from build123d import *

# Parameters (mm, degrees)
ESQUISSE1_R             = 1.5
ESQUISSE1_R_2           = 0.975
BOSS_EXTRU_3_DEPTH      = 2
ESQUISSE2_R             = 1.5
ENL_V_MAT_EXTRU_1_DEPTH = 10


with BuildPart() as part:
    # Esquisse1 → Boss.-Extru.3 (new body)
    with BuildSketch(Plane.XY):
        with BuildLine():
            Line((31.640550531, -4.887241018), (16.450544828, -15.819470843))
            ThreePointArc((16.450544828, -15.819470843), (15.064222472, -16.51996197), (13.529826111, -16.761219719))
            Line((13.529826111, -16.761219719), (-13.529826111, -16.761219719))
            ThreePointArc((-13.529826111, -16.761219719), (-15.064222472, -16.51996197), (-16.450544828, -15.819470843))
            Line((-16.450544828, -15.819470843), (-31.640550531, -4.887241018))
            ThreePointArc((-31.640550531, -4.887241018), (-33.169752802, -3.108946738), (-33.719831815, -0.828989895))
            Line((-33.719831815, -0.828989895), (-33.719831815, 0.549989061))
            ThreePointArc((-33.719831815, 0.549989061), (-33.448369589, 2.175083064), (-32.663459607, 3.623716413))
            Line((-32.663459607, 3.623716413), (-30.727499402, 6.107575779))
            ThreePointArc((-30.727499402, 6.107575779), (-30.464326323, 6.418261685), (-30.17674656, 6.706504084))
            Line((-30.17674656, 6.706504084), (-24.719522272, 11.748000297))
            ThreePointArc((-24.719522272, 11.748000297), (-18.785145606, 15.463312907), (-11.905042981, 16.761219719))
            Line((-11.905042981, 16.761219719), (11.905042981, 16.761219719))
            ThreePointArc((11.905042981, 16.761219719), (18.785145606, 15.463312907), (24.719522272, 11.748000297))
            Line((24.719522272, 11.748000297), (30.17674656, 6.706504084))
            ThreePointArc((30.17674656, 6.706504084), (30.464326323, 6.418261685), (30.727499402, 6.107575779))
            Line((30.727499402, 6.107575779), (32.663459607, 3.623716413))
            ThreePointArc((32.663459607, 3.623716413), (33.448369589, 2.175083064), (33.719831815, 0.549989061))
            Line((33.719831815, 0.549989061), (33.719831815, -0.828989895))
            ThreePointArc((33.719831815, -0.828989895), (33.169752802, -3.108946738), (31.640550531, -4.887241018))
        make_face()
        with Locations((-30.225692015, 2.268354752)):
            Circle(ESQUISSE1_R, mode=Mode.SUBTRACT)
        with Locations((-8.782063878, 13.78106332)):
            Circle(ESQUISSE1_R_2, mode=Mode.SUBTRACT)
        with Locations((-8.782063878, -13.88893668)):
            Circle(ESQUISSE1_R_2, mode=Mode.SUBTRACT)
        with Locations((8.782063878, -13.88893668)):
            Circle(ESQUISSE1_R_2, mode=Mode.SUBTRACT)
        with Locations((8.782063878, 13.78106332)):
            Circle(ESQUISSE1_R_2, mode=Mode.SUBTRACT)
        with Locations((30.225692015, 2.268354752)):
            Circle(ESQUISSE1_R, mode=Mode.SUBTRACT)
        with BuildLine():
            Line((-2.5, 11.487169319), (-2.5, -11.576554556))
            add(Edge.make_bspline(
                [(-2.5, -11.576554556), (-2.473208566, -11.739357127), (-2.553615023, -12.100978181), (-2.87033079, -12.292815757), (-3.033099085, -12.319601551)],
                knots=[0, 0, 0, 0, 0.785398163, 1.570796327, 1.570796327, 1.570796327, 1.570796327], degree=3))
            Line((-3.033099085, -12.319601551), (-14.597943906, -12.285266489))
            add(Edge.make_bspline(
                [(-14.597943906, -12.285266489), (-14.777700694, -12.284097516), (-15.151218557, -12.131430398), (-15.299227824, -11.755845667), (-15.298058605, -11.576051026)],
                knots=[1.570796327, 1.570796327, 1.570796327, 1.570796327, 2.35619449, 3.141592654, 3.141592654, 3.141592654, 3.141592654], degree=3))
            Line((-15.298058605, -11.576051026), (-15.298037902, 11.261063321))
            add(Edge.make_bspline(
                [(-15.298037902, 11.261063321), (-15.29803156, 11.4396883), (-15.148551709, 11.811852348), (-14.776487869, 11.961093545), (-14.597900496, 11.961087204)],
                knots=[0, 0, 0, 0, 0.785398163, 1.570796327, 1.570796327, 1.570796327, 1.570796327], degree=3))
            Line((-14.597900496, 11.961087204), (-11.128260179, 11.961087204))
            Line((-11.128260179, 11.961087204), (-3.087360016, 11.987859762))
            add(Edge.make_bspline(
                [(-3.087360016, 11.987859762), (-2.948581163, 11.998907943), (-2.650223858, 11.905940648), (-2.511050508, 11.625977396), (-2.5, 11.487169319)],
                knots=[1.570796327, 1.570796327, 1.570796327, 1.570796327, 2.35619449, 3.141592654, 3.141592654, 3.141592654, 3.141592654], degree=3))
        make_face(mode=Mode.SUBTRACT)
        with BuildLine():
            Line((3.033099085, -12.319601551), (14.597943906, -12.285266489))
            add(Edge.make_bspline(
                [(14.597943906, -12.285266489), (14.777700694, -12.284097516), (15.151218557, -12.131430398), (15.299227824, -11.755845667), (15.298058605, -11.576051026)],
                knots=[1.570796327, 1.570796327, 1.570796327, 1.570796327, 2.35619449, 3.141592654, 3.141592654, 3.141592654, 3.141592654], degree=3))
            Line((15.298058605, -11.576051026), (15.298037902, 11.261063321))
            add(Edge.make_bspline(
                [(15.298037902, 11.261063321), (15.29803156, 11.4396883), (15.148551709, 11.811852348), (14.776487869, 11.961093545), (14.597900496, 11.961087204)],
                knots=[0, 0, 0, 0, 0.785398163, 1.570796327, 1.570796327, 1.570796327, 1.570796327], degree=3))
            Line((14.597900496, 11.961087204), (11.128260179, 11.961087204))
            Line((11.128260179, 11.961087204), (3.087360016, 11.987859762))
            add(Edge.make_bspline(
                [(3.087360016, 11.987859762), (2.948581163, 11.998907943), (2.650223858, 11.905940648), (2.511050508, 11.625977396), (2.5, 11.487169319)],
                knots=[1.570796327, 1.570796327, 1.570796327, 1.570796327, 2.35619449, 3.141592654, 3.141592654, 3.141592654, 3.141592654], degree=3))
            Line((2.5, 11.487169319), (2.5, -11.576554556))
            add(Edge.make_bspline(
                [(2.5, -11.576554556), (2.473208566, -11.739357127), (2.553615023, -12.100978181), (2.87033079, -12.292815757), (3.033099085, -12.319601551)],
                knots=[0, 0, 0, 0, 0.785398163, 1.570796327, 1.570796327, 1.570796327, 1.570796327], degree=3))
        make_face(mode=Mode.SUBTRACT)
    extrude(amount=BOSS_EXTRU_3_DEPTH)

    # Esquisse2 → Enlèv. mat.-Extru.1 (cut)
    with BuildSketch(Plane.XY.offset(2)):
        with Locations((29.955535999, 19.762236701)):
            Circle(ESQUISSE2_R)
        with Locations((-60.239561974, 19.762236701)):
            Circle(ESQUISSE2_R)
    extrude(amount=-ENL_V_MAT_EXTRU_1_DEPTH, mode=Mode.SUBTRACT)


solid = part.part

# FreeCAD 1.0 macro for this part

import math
import FreeCAD as App
import Part
import Sketcher
Q = App.Units.Quantity

doc = App.newDocument("Part")
body = doc.addObject("PartDesign::Body", "Body")

# Sketch on XY plane
sketch1 = doc.addObject("Sketcher::SketchObject", "Sketch")
body.addObject(sketch1)
sketch1.AttachmentSupport = (doc.XY_Plane, [""])
sketch1.MapMode = "FlatFace"
sketch1.addGeometry(Part.LineSegment(App.Vector(16.450545, -15.819471, 0), App.Vector(31.640551, -4.887241, 0)), False)
sketch1.addGeometry(Part.ArcOfCircle(Part.Circle(App.Vector(28.719832, -0.82899, 0), App.Vector(0, 0, 1), 5), math.radians(-54.257478), math.radians(0)), False)
sketch1.addGeometry(Part.LineSegment(App.Vector(33.719832, -0.82899, 0), App.Vector(33.719832, 0.549989, 0)), False)
sketch1.addGeometry(Part.ArcOfCircle(Part.Circle(App.Vector(28.719832, 0.549989, 0), App.Vector(0, 0, 1), 5), math.radians(0), math.radians(37.933428)), False)
sketch1.addGeometry(Part.LineSegment(App.Vector(32.66346, 3.623716, 0), App.Vector(30.727499, 6.107576, 0)), False)
sketch1.addGeometry(Part.ArcOfCircle(Part.Circle(App.Vector(26.783872, 3.033848, 0), App.Vector(0, 0, 1), 5), math.radians(37.933428), math.radians(47.267612)), False)
sketch1.addGeometry(Part.LineSegment(App.Vector(30.176747, 6.706504, 0), App.Vector(24.719522, 11.748, 0)), False)
sketch1.addGeometry(Part.ArcOfCircle(Part.Circle(App.Vector(11.905043, -2.123177, 0), App.Vector(0, 0, 1), 18.884397), math.radians(47.267612), math.radians(90)), False)
sketch1.addGeometry(Part.LineSegment(App.Vector(11.905043, 16.76122, 0), App.Vector(-11.905043, 16.76122, 0)), False)
sketch1.addGeometry(Part.ArcOfCircle(Part.Circle(App.Vector(-11.905043, -2.123177, 0), App.Vector(0, 0, 1), 18.884397), math.radians(90), math.radians(132.732388)), False)
sketch1.addGeometry(Part.LineSegment(App.Vector(-24.719522, 11.748, 0), App.Vector(-30.176747, 6.706504, 0)), False)
sketch1.addGeometry(Part.ArcOfCircle(Part.Circle(App.Vector(-26.783872, 3.033848, 0), App.Vector(0, 0, 1), 5), math.radians(132.732388), math.radians(142.066572)), False)
sketch1.addGeometry(Part.LineSegment(App.Vector(-30.727499, 6.107576, 0), App.Vector(-32.66346, 3.623716, 0)), False)
sketch1.addGeometry(Part.ArcOfCircle(Part.Circle(App.Vector(-28.719832, 0.549989, 0), App.Vector(0, 0, 1), 5), math.radians(142.066572), math.radians(180)), False)
sketch1.addGeometry(Part.LineSegment(App.Vector(-33.719832, 0.549989, 0), App.Vector(-33.719832, -0.82899, 0)), False)
sketch1.addGeometry(Part.ArcOfCircle(Part.Circle(App.Vector(-28.719832, -0.82899, 0), App.Vector(0, 0, 1), 5), math.radians(-180), math.radians(-125.742522)), False)
sketch1.addGeometry(Part.LineSegment(App.Vector(-31.640551, -4.887241, 0), App.Vector(-16.450545, -15.819471, 0)), False)
sketch1.addGeometry(Part.ArcOfCircle(Part.Circle(App.Vector(-13.529826, -11.76122, 0), App.Vector(0, 0, 1), 5), math.radians(-125.742522), math.radians(-90)), False)
sketch1.addGeometry(Part.LineSegment(App.Vector(-13.529826, -16.76122, 0), App.Vector(13.529826, -16.76122, 0)), False)
sketch1.addGeometry(Part.ArcOfCircle(Part.Circle(App.Vector(13.529826, -11.76122, 0), App.Vector(0, 0, 1), 5), math.radians(-90), math.radians(-54.257478)), False)
sketch1.addGeometry(Part.Circle(App.Vector(8.782064, -13.888937, 0), App.Vector(0, 0, 1), 0.975), False)
sketch1.addGeometry(Part.BSplineCurve([App.Vector(2.5, -11.576555, 0), App.Vector(2.473209, -11.739357, 0), App.Vector(2.553615, -12.100978, 0), App.Vector(2.870331, -12.292816, 0), App.Vector(3.033099, -12.319602, 0)], [4, 1, 4], [0, 0.785398163, 1.570796327], False, 3, [1, 1, 1, 1, 1], False), False)
sketch1.addGeometry(Part.LineSegment(App.Vector(2.5, -11.576555, 0), App.Vector(2.5, 11.487169, 0)), False)
sketch1.addGeometry(Part.BSplineCurve([App.Vector(3.08736, 11.98786, 0), App.Vector(2.948581, 11.998908, 0), App.Vector(2.650224, 11.905941, 0), App.Vector(2.511051, 11.625977, 0), App.Vector(2.5, 11.487169, 0)], [4, 1, 4], [1.570796327, 2.35619449, 3.141592654], False, 3, [1, 1, 1, 1, 1], False), False)
sketch1.addGeometry(Part.LineSegment(App.Vector(3.08736, 11.98786, 0), App.Vector(11.12826, 11.961087, 0)), False)
sketch1.addGeometry(Part.LineSegment(App.Vector(11.12826, 11.961087, 0), App.Vector(14.5979, 11.961087, 0)), False)
sketch1.addGeometry(Part.BSplineCurve([App.Vector(15.298038, 11.261063, 0), App.Vector(15.298032, 11.439688, 0), App.Vector(15.148552, 11.811852, 0), App.Vector(14.776488, 11.961094, 0), App.Vector(14.5979, 11.961087, 0)], [4, 1, 4], [0, 0.785398163, 1.570796327], False, 3, [1, 1, 1, 1, 1], False), False)
sketch1.addGeometry(Part.LineSegment(App.Vector(15.298038, 11.261063, 0), App.Vector(15.298059, -11.576051, 0)), False)
sketch1.addGeometry(Part.BSplineCurve([App.Vector(14.597944, -12.285266, 0), App.Vector(14.777701, -12.284098, 0), App.Vector(15.151219, -12.13143, 0), App.Vector(15.299228, -11.755846, 0), App.Vector(15.298059, -11.576051, 0)], [4, 1, 4], [1.570796327, 2.35619449, 3.141592654], False, 3, [1, 1, 1, 1, 1], False), False)
sketch1.addGeometry(Part.LineSegment(App.Vector(14.597944, -12.285266, 0), App.Vector(3.033099, -12.319602, 0)), False)
sketch1.addGeometry(Part.Circle(App.Vector(-8.782064, -13.888937, 0), App.Vector(0, 0, 1), 0.975), False)
sketch1.addGeometry(Part.LineSegment(App.Vector(-2.5, 11.487169, 0), App.Vector(-2.5, -11.576555, 0)), False)
sketch1.addGeometry(Part.BSplineCurve([App.Vector(-2.5, -11.576555, 0), App.Vector(-2.473209, -11.739357, 0), App.Vector(-2.553615, -12.100978, 0), App.Vector(-2.870331, -12.292816, 0), App.Vector(-3.033099, -12.319602, 0)], [4, 1, 4], [0, 0.785398163, 1.570796327], False, 3, [1, 1, 1, 1, 1], False), False)
sketch1.addGeometry(Part.LineSegment(App.Vector(-3.033099, -12.319602, 0), App.Vector(-14.597944, -12.285266, 0)), False)
sketch1.addGeometry(Part.BSplineCurve([App.Vector(-14.597944, -12.285266, 0), App.Vector(-14.777701, -12.284098, 0), App.Vector(-15.151219, -12.13143, 0), App.Vector(-15.299228, -11.755846, 0), App.Vector(-15.298059, -11.576051, 0)], [4, 1, 4], [1.570796327, 2.35619449, 3.141592654], False, 3, [1, 1, 1, 1, 1], False), False)
sketch1.addGeometry(Part.LineSegment(App.Vector(-15.298059, -11.576051, 0), App.Vector(-15.298038, 11.261063, 0)), False)
sketch1.addGeometry(Part.BSplineCurve([App.Vector(-15.298038, 11.261063, 0), App.Vector(-15.298032, 11.439688, 0), App.Vector(-15.148552, 11.811852, 0), App.Vector(-14.776488, 11.961094, 0), App.Vector(-14.5979, 11.961087, 0)], [4, 1, 4], [0, 0.785398163, 1.570796327], False, 3, [1, 1, 1, 1, 1], False), False)
sketch1.addGeometry(Part.LineSegment(App.Vector(-14.5979, 11.961087, 0), App.Vector(-11.12826, 11.961087, 0)), False)
sketch1.addGeometry(Part.LineSegment(App.Vector(-11.12826, 11.961087, 0), App.Vector(-3.08736, 11.98786, 0)), False)
sketch1.addGeometry(Part.BSplineCurve([App.Vector(-3.08736, 11.98786, 0), App.Vector(-2.948581, 11.998908, 0), App.Vector(-2.650224, 11.905941, 0), App.Vector(-2.511051, 11.625977, 0), App.Vector(-2.5, 11.487169, 0)], [4, 1, 4], [1.570796327, 2.35619449, 3.141592654], False, 3, [1, 1, 1, 1, 1], False), False)
sketch1.addGeometry(Part.Circle(App.Vector(30.225692, 2.268355, 0), App.Vector(0, 0, 1), 1.5), False)
sketch1.addGeometry(Part.Circle(App.Vector(8.782064, 13.781063, 0), App.Vector(0, 0, 1), 0.975), False)
sketch1.addGeometry(Part.Circle(App.Vector(-30.225692, 2.268355, 0), App.Vector(0, 0, 1), 1.5), False)
sketch1.addGeometry(Part.Circle(App.Vector(-8.782064, 13.781063, 0), App.Vector(0, 0, 1), 0.975), False)
sketch1.addConstraint(Sketcher.Constraint("Block", 21))
sketch1.addConstraint(Sketcher.Constraint("Block", 23))
sketch1.addConstraint(Sketcher.Constraint("Block", 26))
sketch1.addConstraint(Sketcher.Constraint("Block", 28))
sketch1.addConstraint(Sketcher.Constraint("Block", 32))
sketch1.addConstraint(Sketcher.Constraint("Block", 34))
sketch1.addConstraint(Sketcher.Constraint("Block", 36))
sketch1.addConstraint(Sketcher.Constraint("Block", 39))
sketch1.addConstraint(Sketcher.Constraint("Tangent", 0, 2, 1, 1))
sketch1.addConstraint(Sketcher.Constraint("Tangent", 1, 2, 2, 1))
sketch1.addConstraint(Sketcher.Constraint("Tangent", 2, 2, 3, 1))
sketch1.addConstraint(Sketcher.Constraint("Tangent", 3, 2, 4, 1))
sketch1.addConstraint(Sketcher.Constraint("Tangent", 4, 2, 5, 1))
sketch1.addConstraint(Sketcher.Constraint("Tangent", 5, 2, 6, 1))
sketch1.addConstraint(Sketcher.Constraint("Tangent", 6, 2, 7, 1))
sketch1.addConstraint(Sketcher.Constraint("Tangent", 7, 2, 8, 1))
sketch1.addConstraint(Sketcher.Constraint("Tangent", 8, 2, 9, 1))
sketch1.addConstraint(Sketcher.Constraint("Tangent", 9, 2, 10, 1))
sketch1.addConstraint(Sketcher.Constraint("Tangent", 10, 2, 11, 1))
sketch1.addConstraint(Sketcher.Constraint("Tangent", 11, 2, 12, 1))
sketch1.addConstraint(Sketcher.Constraint("Tangent", 12, 2, 13, 1))
sketch1.addConstraint(Sketcher.Constraint("Tangent", 13, 2, 14, 1))
sketch1.addConstraint(Sketcher.Constraint("Tangent", 14, 2, 15, 1))
sketch1.addConstraint(Sketcher.Constraint("Tangent", 15, 2, 16, 1))
sketch1.addConstraint(Sketcher.Constraint("Tangent", 16, 2, 17, 1))
sketch1.addConstraint(Sketcher.Constraint("Tangent", 17, 2, 18, 1))
sketch1.addConstraint(Sketcher.Constraint("Tangent", 18, 2, 19, 1))
sketch1.addConstraint(Sketcher.Constraint("Tangent", 19, 2, 0, 1))
sketch1.addConstraint(Sketcher.Constraint("Coincident", 21, 1, 22, 1))
sketch1.addConstraint(Sketcher.Constraint("Coincident", 22, 2, 23, 2))
sketch1.addConstraint(Sketcher.Constraint("Coincident", 23, 1, 24, 1))
sketch1.addConstraint(Sketcher.Constraint("Coincident", 24, 2, 25, 1))
sketch1.addConstraint(Sketcher.Constraint("Coincident", 25, 2, 26, 2))
sketch1.addConstraint(Sketcher.Constraint("Coincident", 26, 1, 27, 1))
sketch1.addConstraint(Sketcher.Constraint("Coincident", 27, 2, 28, 2))
sketch1.addConstraint(Sketcher.Constraint("Coincident", 28, 1, 29, 1))
sketch1.addConstraint(Sketcher.Constraint("Coincident", 29, 2, 21, 2))
sketch1.addConstraint(Sketcher.Constraint("Coincident", 31, 2, 32, 1))
sketch1.addConstraint(Sketcher.Constraint("Coincident", 32, 2, 33, 1))
sketch1.addConstraint(Sketcher.Constraint("Coincident", 33, 2, 34, 1))
sketch1.addConstraint(Sketcher.Constraint("Coincident", 34, 2, 35, 1))
sketch1.addConstraint(Sketcher.Constraint("Coincident", 35, 2, 36, 1))
sketch1.addConstraint(Sketcher.Constraint("Coincident", 36, 2, 37, 1))
sketch1.addConstraint(Sketcher.Constraint("Coincident", 37, 2, 38, 1))
sketch1.addConstraint(Sketcher.Constraint("Coincident", 38, 2, 39, 1))
sketch1.addConstraint(Sketcher.Constraint("Coincident", 39, 2, 31, 1))
sketch1.addConstraint(Sketcher.Constraint("Vertical", 2))
sketch1.addConstraint(Sketcher.Constraint("Horizontal", 8))
sketch1.addConstraint(Sketcher.Constraint("Vertical", 14))
sketch1.addConstraint(Sketcher.Constraint("Horizontal", 18))
sketch1.addConstraint(Sketcher.Constraint("Horizontal", 25))
sketch1.addConstraint(Sketcher.Constraint("Horizontal", 37))
sketch1.addConstraint(Sketcher.Constraint("Equal", 1, 3))
sketch1.addConstraint(Sketcher.Constraint("Equal", 3, 5))
sketch1.addConstraint(Sketcher.Constraint("Equal", 7, 9))
sketch1.addConstraint(Sketcher.Constraint("Equal", 5, 11))
sketch1.addConstraint(Sketcher.Constraint("Equal", 11, 13))
sketch1.addConstraint(Sketcher.Constraint("Equal", 13, 15))
sketch1.addConstraint(Sketcher.Constraint("Equal", 15, 17))
sketch1.addConstraint(Sketcher.Constraint("Equal", 17, 19))
sketch1.addConstraint(Sketcher.Constraint("Equal", 20, 30))
sketch1.addConstraint(Sketcher.Constraint("Equal", 30, 41))
sketch1.addConstraint(Sketcher.Constraint("Equal", 40, 42))
sketch1.addConstraint(Sketcher.Constraint("Equal", 41, 43))
sketch1.addConstraint(Sketcher.Constraint("Symmetric", 5, 3, 11, 3, -2))
sketch1.addConstraint(Sketcher.Constraint("Symmetric", 3, 3, 13, 3, -2))
sketch1.addConstraint(Sketcher.Constraint("Symmetric", 20, 3, 30, 3, -2))
sketch1.addConstraint(Sketcher.Constraint("Symmetric", 40, 3, 42, 3, -2))
sketch1.addConstraint(Sketcher.Constraint("Symmetric", 41, 3, 43, 3, -2))
sketch1.addConstraint(Sketcher.Constraint("Symmetric", 0, 2, 15, 2, -2))
sketch1.addConstraint(Sketcher.Constraint("Horizontal", 6, 2, 9, 2))
sketch1.addConstraint(Sketcher.Constraint("Vertical", 20, 3, 41, 3))
sketch1.addConstraint(Sketcher.Constraint("Equal", 25, 37))
sketch1.addConstraint(Sketcher.Constraint("Diameter", 40, Q("3 mm")))
sketch1.addConstraint(Sketcher.Constraint("Radius", 1, Q("5 mm")))
sketch1.addConstraint(Sketcher.Constraint("Diameter", 20, Q("1.95 mm")))
sketch1.addConstraint(Sketcher.Constraint("DistanceY", 35, 2, 43, 3, Q("2.52 mm")))
sketch1.addConstraint(Sketcher.Constraint("DistanceY", -1, 1, 6, 2, Q("11.748 mm")))
sketch1.addConstraint(Sketcher.Constraint("Radius", 7, Q("18.884397 mm")))
sketch1.addConstraint(Sketcher.Constraint("DistanceX", 25, 1, 25, 2, Q("3.46964 mm")))
sketch1.addConstraint(Sketcher.Constraint("DistanceY", 2, 1, 2, 2, Q("1.378979 mm")))
sketch1.addConstraint(Sketcher.Constraint("DistanceX", -1, 1, 4, 2, Q("30.727499 mm")))
sketch1.addConstraint(Sketcher.Constraint("DistanceX", 16, 2, 9, 3, Q("4.545502 mm")))
sketch1.addConstraint(Sketcher.Constraint("DistanceX", 16, 2, 33, 2, Q("1.852601 mm")))
sketch1.addConstraint(Sketcher.Constraint("DistanceX", 18, 1, 18, 2, Q("27.059652 mm")))
sketch1.addConstraint(Sketcher.Constraint("DistanceX", -1, 1, 1, 3, Q("28.719832 mm")))
sketch1.addConstraint(Sketcher.Constraint("DistanceY", 1, 3, -1, 1, Q("0.82899 mm")))
sketch1.addConstraint(Sketcher.Constraint("DistanceX", -1, 1, 5, 3, Q("26.783872 mm")))
sketch1.addConstraint(Sketcher.Constraint("DistanceX", 20, 3, 7, 3, Q("3.122979 mm")))
sketch1.addConstraint(Sketcher.Constraint("DistanceY", 20, 3, 7, 3, Q("11.76576 mm")))
sketch1.addConstraint(Sketcher.Constraint("DistanceX", 3, 3, 40, 3, Q("1.50586 mm")))
sketch1.addConstraint(Sketcher.Constraint("DistanceY", 7, 3, 40, 3, Q("4.391532 mm")))
pad1 = doc.addObject("PartDesign::Pad", "Pad")
body.addObject(pad1)
pad1.Profile = sketch1
pad1.Length = 2

# Sketch on XY plane
sketch2 = doc.addObject("Sketcher::SketchObject", "Sketch001")
body.addObject(sketch2)
sketch2.AttachmentSupport = (doc.XY_Plane, [""])
sketch2.MapMode = "FlatFace"
sketch2.AttachmentOffset = App.Placement(App.Vector(0, 0, 2), App.Rotation())
sketch2.addGeometry(Part.Circle(App.Vector(30, 19.8, 0), App.Vector(0, 0, 1), 1.5), False)
sketch2.addGeometry(Part.Circle(App.Vector(-60.2, 19.8, 0), App.Vector(0, 0, 1), 1.5), False)
sketch2.addConstraint(Sketcher.Constraint("Equal", 0, 1))
sketch2.addConstraint(Sketcher.Constraint("Horizontal", 0, 3, 1, 3))
sketch2.addConstraint(Sketcher.Constraint("Diameter", 0, Q("3 mm")))
sketch2.addConstraint(Sketcher.Constraint("DistanceX", 1, 3, -1, 1, Q("60.239562 mm")))
sketch2.addConstraint(Sketcher.Constraint("DistanceX", -1, 1, 0, 3, Q("29.955536 mm")))
sketch2.addConstraint(Sketcher.Constraint("DistanceY", -1, 1, 0, 3, Q("19.762237 mm")))
pocket1 = doc.addObject("PartDesign::Pocket", "Pocket")
body.addObject(pocket1)
pocket1.Profile = sketch2
pocket1.Length = 10

doc.recompute()
